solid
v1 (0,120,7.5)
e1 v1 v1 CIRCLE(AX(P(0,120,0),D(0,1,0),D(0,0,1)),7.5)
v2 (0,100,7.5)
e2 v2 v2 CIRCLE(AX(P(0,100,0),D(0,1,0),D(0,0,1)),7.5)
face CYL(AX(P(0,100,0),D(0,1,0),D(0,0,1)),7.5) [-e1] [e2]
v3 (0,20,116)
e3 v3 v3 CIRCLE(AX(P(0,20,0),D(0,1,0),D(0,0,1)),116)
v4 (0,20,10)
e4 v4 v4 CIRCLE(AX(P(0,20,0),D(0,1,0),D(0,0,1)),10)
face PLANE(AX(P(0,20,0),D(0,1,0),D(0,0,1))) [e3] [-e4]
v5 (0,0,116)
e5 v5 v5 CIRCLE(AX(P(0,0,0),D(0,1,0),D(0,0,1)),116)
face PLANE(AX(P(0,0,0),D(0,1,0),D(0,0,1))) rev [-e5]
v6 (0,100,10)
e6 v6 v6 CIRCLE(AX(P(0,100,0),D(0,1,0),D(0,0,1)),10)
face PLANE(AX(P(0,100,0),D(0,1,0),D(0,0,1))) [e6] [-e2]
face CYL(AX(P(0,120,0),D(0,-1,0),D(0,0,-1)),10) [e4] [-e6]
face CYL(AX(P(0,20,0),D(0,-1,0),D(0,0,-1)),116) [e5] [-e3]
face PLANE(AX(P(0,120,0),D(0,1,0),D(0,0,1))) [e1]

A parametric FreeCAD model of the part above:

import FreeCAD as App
import Part
import Sketcher
from FreeCAD import Vector
Q = App.Units.Quantity

doc = App.newDocument("Part")
body = doc.addObject("PartDesign::Body", "Body")

# Sketch on XZ plane
sketch1 = body.newObject("Sketcher::SketchObject", "Sketch")
sketch1.AttachmentSupport = (doc.getObject("XZ_Plane"), [""])
sketch1.MapMode = "FlatFace"
sketch1.addGeometry(Part.Circle(Vector(0, 0, 0), Vector(0, 0, 1), 116), False)
sketch1.addConstraint([
    Sketcher.Constraint("Coincident", 0, 3, -1, 1),
    Sketcher.Constraint("Diameter", 0, Q("232 mm")),
])
pad1 = body.newObject("PartDesign::Pad", "Pad")
pad1.Profile = sketch1
pad1.Length = 20
pad1.Reversed = True

# Sketch on XZ plane
sketch2 = body.newObject("Sketcher::SketchObject", "Sketch001")
sketch2.AttachmentSupport = (doc.getObject("XZ_Plane"), [""])
sketch2.MapMode = "FlatFace"
sketch2.AttachmentOffset = App.Placement(Vector(0, 0, -20), App.Rotation())
sketch2.addGeometry(Part.Circle(Vector(0, 0, 0), Vector(0, 0, 1), 10), False)
sketch2.addConstraint([
    Sketcher.Constraint("Coincident", 0, 3, -1, 1),
    Sketcher.Constraint("Diameter", 0, Q("20 mm")),
])
pad2 = body.newObject("PartDesign::Pad", "Pad001")
pad2.Profile = sketch2
pad2.Length = 100
pad2.Reversed = True

# Sketch on XZ plane
sketch3 = body.newObject("Sketcher::SketchObject", "Sketch002")
sketch3.AttachmentSupport = (doc.getObject("XZ_Plane"), [""])
sketch3.MapMode = "FlatFace"
sketch3.AttachmentOffset = App.Placement(Vector(0, 0, -120), App.Rotation())
sketch3.addGeometry([
    Part.LineSegment(Vector(-152, -152, 0), Vector(-152, 152, 0)),  # 0
    Part.LineSegment(Vector(-152, 152, 0), Vector(152, 152, 0)),  # 1
    Part.LineSegment(Vector(152, 152, 0), Vector(152, -152, 0)),  # 2
    Part.LineSegment(Vector(152, -152, 0), Vector(-152, -152, 0)),  # 3
    Part.Circle(Vector(0, 0, 0), Vector(0, 0, 1), 8),  # 4
], False)
sketch3.addConstraint([
    Sketcher.Constraint("Coincident", 0, 2, 1, 1),
    Sketcher.Constraint("Coincident", 1, 2, 2, 1),
    Sketcher.Constraint("Coincident", 2, 2, 3, 1),
    Sketcher.Constraint("Coincident", 3, 2, 0, 1),
    Sketcher.Constraint("Vertical", 0),
    Sketcher.Constraint("Horizontal", 1),
    Sketcher.Constraint("Vertical", 2),
    Sketcher.Constraint("Horizontal", 3),
    Sketcher.Constraint("Coincident", 4, 3, -1, 1),
    Sketcher.Constraint("Symmetric", 0, 2, 2, 2, -1, 1),
    Sketcher.Constraint("Equal", 3, 0),
    Sketcher.Constraint("Diameter", 4, Q("15 mm")),
    Sketcher.Constraint("DistanceX", 1, 1, 1, 2, Q("303.87 mm")),
])
pocket1 = body.newObject("PartDesign::Pocket", "Pocket")
pocket1.Profile = sketch3
pocket1.Length = 20
pocket1.Reversed = True

doc.recompute()
